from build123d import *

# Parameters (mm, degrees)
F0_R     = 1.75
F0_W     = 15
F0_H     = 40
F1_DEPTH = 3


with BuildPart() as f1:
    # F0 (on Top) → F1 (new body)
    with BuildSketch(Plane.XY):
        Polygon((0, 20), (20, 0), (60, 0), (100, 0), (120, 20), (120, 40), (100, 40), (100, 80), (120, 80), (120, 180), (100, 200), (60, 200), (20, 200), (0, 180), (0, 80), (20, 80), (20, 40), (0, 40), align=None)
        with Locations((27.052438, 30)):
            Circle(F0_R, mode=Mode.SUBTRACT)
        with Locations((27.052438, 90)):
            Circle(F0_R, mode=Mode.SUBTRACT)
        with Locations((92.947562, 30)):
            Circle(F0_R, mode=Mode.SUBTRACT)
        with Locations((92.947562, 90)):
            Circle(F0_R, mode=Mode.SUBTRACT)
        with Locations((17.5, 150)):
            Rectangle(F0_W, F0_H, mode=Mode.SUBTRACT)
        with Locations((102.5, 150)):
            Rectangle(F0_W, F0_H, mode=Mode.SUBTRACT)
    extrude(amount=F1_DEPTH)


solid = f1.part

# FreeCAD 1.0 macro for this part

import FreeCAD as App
import Part
import Sketcher

V = App.Vector
Q = App.Units.Quantity


def add_polygon(sketch, points):
    """Adds a closed chain of lines whose ends are joined by coincident constraints."""
    first, n = sketch.GeometryCount, len(points)
    for a, b in zip(points, points[1:] + points[:1]):
        sketch.addGeometry(Part.LineSegment(App.Vector(*a, 0), App.Vector(*b, 0)), False)
    for i in range(n):
        sketch.addConstraint(Sketcher.Constraint("Coincident", first + i, 2, first + (i + 1) % n, 1))

doc = App.newDocument("Part")
params = doc.addObject("Spreadsheet::Sheet", "Params")
for row, (alias, value) in enumerate([
    ("sketch1_diameter", "3.5 mm"),
    ("sketch1_width", "80 mm"),
    ("sketch1_width2", "20 mm"),
    ("sketch1_width3", "15 mm"),
    ("sketch1_height", "40 mm"),
    ("pad1_length", "3 mm"),
], start=1):
    params.set(f"A{row}", alias)
    params.set(f"B{row}", "=" + value)
    params.setAlias(f"B{row}", alias)

body = doc.addObject("PartDesign::Body", "Body")

sketch1 = body.newObject("Sketcher::SketchObject", "Sketch")
sketch1.AttachmentSupport = (doc.getObject("XY_Plane"), [""])
sketch1.MapMode = "FlatFace"
add_polygon(sketch1, [(0, 20), (20, 0), (100, 0), (120, 20), (120, 40), (100, 40), (100, 80), (120, 80), (120, 180), (100, 200), (20, 200), (0, 180), (0, 80), (20, 80), (20, 40), (0, 40)])
sketch1.addGeometry(Part.Circle(V(27.1, 30, 0), V(0, 0, 1), 1.8), False)
sketch1.addGeometry(Part.Circle(V(27.1, 90, 0), V(0, 0, 1), 1.8), False)
sketch1.addGeometry(Part.Circle(V(92.9, 30, 0), V(0, 0, 1), 1.8), False)
sketch1.addGeometry(Part.Circle(V(92.9, 90, 0), V(0, 0, 1), 1.8), False)
add_polygon(sketch1, [(25, 130), (10, 130), (10, 170), (25, 170)])
add_polygon(sketch1, [(110, 130), (95, 130), (95, 170), (110, 170)])
sketch1.addConstraint([
    Sketcher.Constraint("Horizontal", 1),
    Sketcher.Constraint("Vertical", 3),
    Sketcher.Constraint("Horizontal", 4),
    Sketcher.Constraint("Vertical", 5),
    Sketcher.Constraint("Horizontal", 6),
    Sketcher.Constraint("Vertical", 7),
    Sketcher.Constraint("Horizontal", 9),
    Sketcher.Constraint("Vertical", 11),
    Sketcher.Constraint("Horizontal", 12),
    Sketcher.Constraint("Vertical", 13),
    Sketcher.Constraint("Horizontal", 14),
    Sketcher.Constraint("Vertical", 15),
    Sketcher.Constraint("Horizontal", 20),
    Sketcher.Constraint("Vertical", 21),
    Sketcher.Constraint("Horizontal", 22),
    Sketcher.Constraint("Vertical", 23),
    Sketcher.Constraint("Horizontal", 24),
    Sketcher.Constraint("Vertical", 25),
    Sketcher.Constraint("Horizontal", 26),
    Sketcher.Constraint("Vertical", 27),
    Sketcher.Constraint("Equal", 16, 17),
    Sketcher.Constraint("Equal", 17, 18),
    Sketcher.Constraint("Equal", 18, 19),
    Sketcher.Constraint("PointOnObject", 0, 2, -1),
    Sketcher.Constraint("PointOnObject", 10, 2, -2),
    Sketcher.Constraint("PointOnObject", 14, 2, -2),
    Sketcher.Constraint("Perpendicular", 0, 2),
    Sketcher.Constraint("Perpendicular", 2, 8),
    Sketcher.Constraint("Perpendicular", 8, 10),
    Sketcher.Constraint("Horizontal", 16, 3, 18, 3),
    Sketcher.Constraint("Horizontal", 17, 3, 19, 3),
    Sketcher.Constraint("Horizontal", 7, 2, 10, 2),
    Sketcher.Constraint("Horizontal", 6, 2, 11, 2),
    Sketcher.Constraint("Horizontal", 4, 2, 13, 2),
    Sketcher.Constraint("Horizontal", 2, 2, 15, 2),
    Sketcher.Constraint("Horizontal", 23, 2, 24, 2),
    Sketcher.Constraint("Horizontal", 22, 2, 25, 2),
    Sketcher.Constraint("Vertical", 16, 3, 17, 3),
    Sketcher.Constraint("Vertical", 18, 3, 19, 3),
    Sketcher.Constraint("Vertical", 1, 2, 4, 2),
    Sketcher.Constraint("Vertical", 3, 2, 6, 2),
    Sketcher.Constraint("Vertical", 5, 2, 8, 2),
    Sketcher.Constraint("Vertical", 0, 2, 9, 2),
    Sketcher.Constraint("Vertical", 9, 2, 12, 2),
    Sketcher.Constraint("Equal", 22, 24),
    Sketcher.Constraint("Equal", 14, 3),
    Sketcher.Constraint("Equal", 13, 21),
    Sketcher.Constraint("Diameter", 16, Q("3.5 mm")),
    Sketcher.Constraint("DistanceX", 1, 1, 1, 2, Q("80 mm")),
    Sketcher.Constraint("DistanceX", 4, 2, 4, 1, Q("20 mm")),
    Sketcher.Constraint("DistanceX", 20, 2, 20, 1, Q("15 mm")),
    Sketcher.Constraint("DistanceY", 5, 1, 5, 2, Q("40 mm")),
    Sketcher.Constraint("DistanceY", 7, 1, 7, 2, Q("100 mm")),
    Sketcher.Constraint("DistanceY", -1, 1, 16, 3, Q("30 mm")),
    Sketcher.Constraint("DistanceY", -1, 1, 17, 3, Q("90 mm")),
    Sketcher.Constraint("DistanceX", -1, 1, 20, 2, Q("10 mm")),
    Sketcher.Constraint("DistanceY", -1, 1, 20, 2, Q("130 mm")),
    Sketcher.Constraint("DistanceX", -1, 1, 24, 2, Q("95 mm")),
    Sketcher.Constraint("DistanceX", -1, 1, 16, 3, Q("27.052438 mm")),
    Sketcher.Constraint("DistanceX", -1, 1, 18, 3, Q("92.947562 mm")),
])
sketch1.setExpression("Constraints[71]", "Params.sketch1_diameter")
sketch1.setExpression("Constraints[72]", "Params.sketch1_width")
sketch1.setExpression("Constraints[73]", "Params.sketch1_width2")
sketch1.setExpression("Constraints[74]", "Params.sketch1_width3")
sketch1.setExpression("Constraints[75]", "Params.sketch1_height")
pad1 = body.newObject("PartDesign::Pad", "Pad")
pad1.Profile = sketch1
pad1.setExpression("Length", "Params.pad1_length")

doc.recompute()
